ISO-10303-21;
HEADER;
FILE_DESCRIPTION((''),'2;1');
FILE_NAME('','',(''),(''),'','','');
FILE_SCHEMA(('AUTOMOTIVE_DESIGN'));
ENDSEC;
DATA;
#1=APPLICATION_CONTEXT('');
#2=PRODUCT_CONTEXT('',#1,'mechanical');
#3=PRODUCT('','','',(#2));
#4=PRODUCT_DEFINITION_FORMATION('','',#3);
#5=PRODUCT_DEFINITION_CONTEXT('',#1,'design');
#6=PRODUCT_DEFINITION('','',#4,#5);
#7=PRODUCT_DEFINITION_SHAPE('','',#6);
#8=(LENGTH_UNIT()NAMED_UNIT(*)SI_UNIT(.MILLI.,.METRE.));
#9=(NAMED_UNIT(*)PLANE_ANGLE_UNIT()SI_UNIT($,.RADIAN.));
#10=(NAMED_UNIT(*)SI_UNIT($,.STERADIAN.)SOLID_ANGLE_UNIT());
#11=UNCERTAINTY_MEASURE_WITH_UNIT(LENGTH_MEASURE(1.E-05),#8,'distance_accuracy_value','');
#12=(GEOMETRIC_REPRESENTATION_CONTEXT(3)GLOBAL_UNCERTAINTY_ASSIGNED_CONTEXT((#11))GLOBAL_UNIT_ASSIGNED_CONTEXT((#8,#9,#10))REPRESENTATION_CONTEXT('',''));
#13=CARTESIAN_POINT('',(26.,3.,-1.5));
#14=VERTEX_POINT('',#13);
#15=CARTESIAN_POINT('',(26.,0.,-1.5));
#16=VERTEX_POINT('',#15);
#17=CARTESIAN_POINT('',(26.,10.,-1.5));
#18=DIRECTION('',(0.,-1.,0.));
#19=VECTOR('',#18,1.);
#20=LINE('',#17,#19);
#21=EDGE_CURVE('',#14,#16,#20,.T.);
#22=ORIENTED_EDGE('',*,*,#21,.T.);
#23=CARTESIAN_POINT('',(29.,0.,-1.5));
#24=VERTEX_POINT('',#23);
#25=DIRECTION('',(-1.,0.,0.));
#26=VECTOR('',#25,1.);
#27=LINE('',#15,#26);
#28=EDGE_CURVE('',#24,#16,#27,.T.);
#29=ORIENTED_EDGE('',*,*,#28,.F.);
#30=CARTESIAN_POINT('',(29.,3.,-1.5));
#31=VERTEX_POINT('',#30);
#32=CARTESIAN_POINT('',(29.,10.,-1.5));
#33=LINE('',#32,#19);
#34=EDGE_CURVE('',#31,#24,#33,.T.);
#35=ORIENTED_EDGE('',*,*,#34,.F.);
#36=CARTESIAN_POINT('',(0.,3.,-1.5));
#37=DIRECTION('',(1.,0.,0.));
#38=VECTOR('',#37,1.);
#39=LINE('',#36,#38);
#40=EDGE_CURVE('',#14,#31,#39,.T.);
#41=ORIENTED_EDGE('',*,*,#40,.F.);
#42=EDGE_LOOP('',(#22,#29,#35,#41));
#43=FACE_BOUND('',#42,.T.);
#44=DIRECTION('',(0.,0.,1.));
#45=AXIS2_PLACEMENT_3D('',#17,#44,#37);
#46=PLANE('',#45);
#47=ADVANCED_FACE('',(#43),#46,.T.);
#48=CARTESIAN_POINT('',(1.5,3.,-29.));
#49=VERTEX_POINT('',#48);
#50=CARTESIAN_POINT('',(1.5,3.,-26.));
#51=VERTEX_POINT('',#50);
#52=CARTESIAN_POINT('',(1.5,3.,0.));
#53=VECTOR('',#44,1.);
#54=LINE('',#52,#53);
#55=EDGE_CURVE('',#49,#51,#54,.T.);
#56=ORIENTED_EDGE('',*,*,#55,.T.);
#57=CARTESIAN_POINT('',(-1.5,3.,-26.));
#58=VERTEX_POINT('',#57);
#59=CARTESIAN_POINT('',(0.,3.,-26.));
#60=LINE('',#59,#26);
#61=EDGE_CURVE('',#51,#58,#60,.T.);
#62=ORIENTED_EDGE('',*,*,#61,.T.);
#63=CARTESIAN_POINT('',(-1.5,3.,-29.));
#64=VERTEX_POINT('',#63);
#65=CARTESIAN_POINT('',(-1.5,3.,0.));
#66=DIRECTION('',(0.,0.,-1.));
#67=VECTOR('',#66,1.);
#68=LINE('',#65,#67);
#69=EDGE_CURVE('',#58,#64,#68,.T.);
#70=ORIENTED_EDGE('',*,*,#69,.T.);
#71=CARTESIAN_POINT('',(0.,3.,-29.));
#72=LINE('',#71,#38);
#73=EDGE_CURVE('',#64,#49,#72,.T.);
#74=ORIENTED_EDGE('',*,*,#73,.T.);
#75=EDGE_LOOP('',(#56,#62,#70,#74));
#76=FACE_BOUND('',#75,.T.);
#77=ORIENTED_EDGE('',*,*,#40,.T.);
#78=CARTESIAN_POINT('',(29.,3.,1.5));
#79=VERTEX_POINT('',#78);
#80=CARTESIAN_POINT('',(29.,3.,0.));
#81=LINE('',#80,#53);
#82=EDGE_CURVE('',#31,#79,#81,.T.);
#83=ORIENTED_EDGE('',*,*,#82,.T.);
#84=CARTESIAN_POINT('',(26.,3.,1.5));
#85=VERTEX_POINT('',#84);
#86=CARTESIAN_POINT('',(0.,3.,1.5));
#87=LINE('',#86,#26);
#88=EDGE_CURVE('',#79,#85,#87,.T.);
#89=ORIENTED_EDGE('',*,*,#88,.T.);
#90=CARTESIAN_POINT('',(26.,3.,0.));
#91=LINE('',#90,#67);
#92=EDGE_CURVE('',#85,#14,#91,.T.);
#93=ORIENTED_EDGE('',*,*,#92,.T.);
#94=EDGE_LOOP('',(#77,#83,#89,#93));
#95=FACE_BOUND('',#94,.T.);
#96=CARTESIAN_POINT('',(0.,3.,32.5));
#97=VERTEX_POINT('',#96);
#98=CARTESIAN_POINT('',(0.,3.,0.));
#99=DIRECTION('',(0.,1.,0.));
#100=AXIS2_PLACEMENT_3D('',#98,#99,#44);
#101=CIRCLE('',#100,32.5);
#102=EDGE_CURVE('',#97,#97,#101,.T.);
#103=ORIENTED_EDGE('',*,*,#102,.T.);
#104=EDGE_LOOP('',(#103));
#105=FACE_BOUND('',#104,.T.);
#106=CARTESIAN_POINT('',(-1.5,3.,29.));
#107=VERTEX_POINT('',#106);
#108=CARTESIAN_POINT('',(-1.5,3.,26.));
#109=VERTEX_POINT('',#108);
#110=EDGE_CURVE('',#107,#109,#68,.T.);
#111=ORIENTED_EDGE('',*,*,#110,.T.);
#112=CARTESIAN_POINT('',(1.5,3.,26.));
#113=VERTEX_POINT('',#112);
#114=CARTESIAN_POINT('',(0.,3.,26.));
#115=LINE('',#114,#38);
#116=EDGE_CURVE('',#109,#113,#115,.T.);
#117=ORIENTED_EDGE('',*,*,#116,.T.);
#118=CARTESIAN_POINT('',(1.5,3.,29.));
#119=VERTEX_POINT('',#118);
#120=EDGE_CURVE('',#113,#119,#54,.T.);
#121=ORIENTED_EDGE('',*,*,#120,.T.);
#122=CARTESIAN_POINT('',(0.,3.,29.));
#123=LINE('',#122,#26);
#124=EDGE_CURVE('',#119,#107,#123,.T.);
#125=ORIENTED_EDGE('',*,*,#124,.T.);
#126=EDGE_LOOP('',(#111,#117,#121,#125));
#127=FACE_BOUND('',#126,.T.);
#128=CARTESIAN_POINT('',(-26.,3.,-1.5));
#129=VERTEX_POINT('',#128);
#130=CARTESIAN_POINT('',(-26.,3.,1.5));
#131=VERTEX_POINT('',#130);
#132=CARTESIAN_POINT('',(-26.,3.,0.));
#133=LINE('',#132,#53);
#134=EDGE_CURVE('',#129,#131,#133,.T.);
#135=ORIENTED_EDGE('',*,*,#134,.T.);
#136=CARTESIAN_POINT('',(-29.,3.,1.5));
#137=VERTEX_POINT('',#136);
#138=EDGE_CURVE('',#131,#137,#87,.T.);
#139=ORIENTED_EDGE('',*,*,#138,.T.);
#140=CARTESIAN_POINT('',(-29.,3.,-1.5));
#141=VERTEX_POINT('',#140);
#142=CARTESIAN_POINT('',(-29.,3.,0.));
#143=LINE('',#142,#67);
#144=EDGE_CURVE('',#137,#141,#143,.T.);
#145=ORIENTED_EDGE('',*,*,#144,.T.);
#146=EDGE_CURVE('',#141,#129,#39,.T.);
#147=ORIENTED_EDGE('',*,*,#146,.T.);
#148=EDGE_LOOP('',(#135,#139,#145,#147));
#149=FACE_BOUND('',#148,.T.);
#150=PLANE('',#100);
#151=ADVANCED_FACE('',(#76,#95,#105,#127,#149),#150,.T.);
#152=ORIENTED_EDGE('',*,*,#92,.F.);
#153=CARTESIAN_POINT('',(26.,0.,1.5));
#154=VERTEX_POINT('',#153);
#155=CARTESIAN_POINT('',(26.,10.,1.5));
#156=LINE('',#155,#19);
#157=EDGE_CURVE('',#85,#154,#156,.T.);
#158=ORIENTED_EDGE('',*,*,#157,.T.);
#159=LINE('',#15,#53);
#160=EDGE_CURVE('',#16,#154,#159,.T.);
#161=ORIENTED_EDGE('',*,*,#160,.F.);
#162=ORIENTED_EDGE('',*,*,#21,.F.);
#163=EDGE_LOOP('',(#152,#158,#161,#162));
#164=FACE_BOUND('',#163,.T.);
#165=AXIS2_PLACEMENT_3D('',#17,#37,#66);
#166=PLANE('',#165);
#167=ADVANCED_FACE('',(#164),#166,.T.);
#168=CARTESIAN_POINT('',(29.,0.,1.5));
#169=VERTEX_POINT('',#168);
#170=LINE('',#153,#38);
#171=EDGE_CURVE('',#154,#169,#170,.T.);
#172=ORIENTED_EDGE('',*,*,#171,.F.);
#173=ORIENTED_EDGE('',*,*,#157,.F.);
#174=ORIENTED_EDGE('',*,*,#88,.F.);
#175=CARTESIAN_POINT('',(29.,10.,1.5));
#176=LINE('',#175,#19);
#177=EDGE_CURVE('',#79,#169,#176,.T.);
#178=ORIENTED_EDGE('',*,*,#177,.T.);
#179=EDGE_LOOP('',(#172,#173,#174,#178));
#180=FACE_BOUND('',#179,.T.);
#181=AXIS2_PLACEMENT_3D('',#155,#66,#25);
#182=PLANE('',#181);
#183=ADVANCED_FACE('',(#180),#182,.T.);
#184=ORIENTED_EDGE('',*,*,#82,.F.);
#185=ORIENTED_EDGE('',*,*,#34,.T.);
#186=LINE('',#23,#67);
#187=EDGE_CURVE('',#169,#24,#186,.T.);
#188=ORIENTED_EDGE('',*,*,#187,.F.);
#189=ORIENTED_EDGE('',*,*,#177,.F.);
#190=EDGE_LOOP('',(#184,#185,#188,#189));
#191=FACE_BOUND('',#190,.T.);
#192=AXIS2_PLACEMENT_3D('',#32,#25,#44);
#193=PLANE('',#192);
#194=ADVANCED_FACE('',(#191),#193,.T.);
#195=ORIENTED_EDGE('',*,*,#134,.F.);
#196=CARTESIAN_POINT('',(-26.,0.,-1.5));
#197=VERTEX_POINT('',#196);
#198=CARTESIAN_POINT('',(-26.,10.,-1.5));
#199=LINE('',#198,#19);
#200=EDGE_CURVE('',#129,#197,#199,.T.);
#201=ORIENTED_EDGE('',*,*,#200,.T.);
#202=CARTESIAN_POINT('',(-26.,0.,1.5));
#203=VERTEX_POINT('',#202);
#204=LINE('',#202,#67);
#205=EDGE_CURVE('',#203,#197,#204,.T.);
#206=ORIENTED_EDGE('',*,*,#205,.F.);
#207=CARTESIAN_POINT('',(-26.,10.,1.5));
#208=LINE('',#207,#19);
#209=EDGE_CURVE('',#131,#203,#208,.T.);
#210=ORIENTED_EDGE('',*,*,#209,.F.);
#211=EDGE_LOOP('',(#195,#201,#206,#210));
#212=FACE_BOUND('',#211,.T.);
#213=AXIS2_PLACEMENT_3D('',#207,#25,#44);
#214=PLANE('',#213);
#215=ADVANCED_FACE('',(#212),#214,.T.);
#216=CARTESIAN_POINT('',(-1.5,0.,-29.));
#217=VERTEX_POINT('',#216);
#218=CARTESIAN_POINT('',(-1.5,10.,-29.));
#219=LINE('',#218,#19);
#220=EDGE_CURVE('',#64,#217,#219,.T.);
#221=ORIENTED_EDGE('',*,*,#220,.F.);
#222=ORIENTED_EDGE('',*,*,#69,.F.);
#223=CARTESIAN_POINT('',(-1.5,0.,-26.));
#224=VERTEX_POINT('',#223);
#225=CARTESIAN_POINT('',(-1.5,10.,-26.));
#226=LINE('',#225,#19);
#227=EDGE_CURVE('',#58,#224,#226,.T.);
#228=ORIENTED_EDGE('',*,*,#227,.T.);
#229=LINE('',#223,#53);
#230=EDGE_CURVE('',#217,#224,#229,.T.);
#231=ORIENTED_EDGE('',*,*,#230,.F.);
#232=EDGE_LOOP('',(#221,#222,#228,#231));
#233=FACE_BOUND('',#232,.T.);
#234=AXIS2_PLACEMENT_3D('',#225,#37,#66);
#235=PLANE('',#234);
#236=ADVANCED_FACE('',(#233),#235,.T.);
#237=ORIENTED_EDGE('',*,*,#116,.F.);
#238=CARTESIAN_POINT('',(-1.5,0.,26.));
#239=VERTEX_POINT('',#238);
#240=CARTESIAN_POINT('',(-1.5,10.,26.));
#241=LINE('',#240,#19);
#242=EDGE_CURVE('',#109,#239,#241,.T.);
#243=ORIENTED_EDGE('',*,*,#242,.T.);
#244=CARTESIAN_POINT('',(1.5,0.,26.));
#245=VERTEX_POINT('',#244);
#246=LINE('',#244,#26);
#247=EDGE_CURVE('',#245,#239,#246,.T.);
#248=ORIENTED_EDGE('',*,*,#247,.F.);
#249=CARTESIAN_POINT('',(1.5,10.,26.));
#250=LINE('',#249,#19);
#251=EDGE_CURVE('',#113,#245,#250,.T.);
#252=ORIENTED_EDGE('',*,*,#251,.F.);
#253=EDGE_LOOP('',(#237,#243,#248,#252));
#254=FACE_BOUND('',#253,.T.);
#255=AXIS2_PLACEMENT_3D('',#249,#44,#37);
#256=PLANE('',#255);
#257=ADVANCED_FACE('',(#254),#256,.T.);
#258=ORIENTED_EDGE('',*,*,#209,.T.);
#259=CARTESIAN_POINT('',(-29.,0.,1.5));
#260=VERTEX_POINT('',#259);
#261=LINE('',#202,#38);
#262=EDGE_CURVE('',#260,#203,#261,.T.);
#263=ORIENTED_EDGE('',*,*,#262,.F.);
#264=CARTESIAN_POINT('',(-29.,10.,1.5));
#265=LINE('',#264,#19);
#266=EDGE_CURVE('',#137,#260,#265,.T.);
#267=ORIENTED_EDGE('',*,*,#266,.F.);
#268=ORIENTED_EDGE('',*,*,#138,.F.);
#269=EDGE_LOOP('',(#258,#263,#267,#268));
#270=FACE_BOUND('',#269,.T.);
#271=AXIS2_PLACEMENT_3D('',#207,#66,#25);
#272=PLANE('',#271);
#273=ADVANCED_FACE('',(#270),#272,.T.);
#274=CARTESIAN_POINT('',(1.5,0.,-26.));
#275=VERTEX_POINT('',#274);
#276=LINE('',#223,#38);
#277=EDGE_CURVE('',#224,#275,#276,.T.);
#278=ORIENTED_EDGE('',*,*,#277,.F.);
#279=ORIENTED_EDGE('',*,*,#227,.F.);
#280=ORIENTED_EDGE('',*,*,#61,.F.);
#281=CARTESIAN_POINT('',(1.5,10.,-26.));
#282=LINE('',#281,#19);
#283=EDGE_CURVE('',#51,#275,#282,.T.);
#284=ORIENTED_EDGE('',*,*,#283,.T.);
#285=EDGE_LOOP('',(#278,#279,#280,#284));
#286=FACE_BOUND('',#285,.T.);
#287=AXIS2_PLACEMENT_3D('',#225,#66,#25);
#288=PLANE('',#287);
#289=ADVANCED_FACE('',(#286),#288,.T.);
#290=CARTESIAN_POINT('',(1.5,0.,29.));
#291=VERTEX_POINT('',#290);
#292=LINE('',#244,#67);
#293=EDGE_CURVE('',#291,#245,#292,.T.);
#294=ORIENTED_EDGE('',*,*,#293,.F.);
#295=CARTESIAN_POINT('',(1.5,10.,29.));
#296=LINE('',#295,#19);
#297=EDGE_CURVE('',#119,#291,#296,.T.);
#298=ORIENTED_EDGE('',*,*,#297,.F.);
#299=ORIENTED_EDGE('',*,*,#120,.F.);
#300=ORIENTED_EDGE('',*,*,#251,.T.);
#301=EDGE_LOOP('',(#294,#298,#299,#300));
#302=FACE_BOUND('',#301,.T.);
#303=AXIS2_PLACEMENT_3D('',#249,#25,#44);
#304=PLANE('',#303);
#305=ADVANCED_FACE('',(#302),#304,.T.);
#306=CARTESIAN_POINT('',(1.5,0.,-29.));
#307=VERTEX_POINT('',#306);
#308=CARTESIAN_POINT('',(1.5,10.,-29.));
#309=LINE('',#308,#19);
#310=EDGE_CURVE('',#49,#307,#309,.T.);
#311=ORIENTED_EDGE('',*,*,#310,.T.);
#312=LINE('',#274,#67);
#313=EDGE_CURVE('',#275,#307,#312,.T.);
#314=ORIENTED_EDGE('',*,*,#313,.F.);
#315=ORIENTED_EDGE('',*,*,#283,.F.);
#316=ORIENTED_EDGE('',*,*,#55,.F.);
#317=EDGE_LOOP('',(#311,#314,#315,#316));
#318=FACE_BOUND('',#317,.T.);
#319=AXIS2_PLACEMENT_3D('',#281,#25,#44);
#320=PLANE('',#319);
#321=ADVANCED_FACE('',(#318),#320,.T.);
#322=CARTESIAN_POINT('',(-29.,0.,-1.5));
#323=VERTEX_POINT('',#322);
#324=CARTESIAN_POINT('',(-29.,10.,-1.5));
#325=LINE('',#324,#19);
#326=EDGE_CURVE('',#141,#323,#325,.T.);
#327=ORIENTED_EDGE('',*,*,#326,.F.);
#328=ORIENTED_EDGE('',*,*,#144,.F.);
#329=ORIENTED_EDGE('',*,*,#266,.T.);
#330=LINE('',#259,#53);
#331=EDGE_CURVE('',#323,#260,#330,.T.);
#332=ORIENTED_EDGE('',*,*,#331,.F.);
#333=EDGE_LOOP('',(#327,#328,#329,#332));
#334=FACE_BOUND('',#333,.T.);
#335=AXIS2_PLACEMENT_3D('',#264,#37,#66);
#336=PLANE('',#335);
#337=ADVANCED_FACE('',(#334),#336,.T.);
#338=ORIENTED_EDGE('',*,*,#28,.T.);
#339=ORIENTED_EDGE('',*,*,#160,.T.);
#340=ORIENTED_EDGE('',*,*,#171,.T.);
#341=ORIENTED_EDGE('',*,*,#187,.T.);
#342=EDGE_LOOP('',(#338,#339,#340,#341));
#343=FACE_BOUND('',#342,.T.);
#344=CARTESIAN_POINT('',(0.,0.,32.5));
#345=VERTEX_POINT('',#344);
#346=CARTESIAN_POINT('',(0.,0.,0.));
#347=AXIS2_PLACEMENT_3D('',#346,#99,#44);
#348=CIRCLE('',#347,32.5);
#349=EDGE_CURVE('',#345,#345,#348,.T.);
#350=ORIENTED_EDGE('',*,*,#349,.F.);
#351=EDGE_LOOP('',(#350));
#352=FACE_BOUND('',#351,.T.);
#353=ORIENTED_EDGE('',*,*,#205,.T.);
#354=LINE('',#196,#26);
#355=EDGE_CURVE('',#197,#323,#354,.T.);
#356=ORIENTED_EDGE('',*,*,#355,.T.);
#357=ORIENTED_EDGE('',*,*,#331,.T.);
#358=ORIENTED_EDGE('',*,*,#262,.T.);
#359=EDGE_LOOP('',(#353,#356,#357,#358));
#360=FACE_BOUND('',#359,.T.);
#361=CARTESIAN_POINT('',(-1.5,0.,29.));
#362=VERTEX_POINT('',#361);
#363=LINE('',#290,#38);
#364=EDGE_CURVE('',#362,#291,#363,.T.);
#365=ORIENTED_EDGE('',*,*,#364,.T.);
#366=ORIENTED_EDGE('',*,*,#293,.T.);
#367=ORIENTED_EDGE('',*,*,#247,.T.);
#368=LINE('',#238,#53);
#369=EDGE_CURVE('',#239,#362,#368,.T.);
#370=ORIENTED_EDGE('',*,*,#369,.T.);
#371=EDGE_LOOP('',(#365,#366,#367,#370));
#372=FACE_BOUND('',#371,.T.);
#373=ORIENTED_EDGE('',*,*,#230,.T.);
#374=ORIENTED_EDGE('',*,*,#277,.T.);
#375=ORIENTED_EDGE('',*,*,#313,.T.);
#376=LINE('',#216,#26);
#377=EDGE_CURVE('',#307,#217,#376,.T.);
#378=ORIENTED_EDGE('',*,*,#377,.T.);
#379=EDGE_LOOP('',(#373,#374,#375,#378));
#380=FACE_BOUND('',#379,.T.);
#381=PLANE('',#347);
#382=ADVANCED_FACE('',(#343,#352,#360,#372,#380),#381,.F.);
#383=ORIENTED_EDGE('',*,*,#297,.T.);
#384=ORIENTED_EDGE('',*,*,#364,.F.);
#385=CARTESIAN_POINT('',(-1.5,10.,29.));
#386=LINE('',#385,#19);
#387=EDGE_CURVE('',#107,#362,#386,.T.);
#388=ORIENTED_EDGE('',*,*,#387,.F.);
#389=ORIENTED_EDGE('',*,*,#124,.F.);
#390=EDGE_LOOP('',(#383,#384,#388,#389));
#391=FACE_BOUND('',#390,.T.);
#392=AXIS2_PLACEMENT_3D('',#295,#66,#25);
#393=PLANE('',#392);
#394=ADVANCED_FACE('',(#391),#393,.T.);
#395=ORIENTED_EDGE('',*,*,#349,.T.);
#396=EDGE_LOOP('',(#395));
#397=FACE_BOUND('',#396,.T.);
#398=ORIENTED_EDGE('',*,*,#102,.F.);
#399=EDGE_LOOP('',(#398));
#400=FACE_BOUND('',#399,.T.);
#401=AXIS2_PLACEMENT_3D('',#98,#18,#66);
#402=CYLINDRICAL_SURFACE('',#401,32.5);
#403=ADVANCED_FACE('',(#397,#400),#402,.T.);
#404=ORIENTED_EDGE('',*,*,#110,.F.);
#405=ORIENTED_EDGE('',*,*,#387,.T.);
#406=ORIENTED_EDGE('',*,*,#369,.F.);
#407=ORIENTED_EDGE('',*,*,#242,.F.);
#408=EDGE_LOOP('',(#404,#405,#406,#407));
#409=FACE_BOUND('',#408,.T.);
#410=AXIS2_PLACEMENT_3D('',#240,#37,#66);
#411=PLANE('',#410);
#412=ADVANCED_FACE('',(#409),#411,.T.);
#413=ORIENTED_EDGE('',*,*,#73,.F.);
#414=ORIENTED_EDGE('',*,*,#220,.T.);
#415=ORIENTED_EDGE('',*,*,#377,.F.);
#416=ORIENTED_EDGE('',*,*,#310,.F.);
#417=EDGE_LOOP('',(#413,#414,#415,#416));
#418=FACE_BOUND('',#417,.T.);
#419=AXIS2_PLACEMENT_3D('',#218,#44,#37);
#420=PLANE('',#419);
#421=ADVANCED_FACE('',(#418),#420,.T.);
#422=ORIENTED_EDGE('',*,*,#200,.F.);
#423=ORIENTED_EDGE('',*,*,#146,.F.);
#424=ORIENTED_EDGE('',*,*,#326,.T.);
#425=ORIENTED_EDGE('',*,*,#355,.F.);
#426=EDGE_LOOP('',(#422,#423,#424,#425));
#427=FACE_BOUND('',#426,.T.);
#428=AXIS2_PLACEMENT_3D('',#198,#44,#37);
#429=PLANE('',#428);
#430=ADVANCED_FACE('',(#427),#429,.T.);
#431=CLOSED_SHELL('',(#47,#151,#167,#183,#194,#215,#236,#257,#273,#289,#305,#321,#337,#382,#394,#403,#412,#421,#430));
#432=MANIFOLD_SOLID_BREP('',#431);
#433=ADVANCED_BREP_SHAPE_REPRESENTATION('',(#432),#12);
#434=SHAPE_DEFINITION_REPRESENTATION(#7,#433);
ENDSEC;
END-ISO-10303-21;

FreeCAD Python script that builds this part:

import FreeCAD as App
import Part
import Sketcher
from FreeCAD import Vector
Q = App.Units.Quantity


def add_polygon(sketch, points):
    """Adds a closed chain of lines whose ends are joined by coincident constraints."""
    first, n = sketch.GeometryCount, len(points)
    for a, b in zip(points, points[1:] + points[:1]):
        sketch.addGeometry(Part.LineSegment(App.Vector(*a, 0), App.Vector(*b, 0)), False)
    for i in range(n):
        sketch.addConstraint(Sketcher.Constraint("Coincident", first + i, 2, first + (i + 1) % n, 1))

doc = App.newDocument("Part")
body = doc.addObject("PartDesign::Body", "Body")

# Sketch on XZ plane
sketch1 = doc.addObject("Sketcher::SketchObject", "Sketch")
body.addObject(sketch1)
sketch1.AttachmentSupport = (doc.XZ_Plane, [""])
sketch1.MapMode = "FlatFace"
sketch1.addGeometry(Part.Circle(Vector(0, 0, 0), Vector(0, 0, 1), 32.5), False)
sketch1.addConstraint([
    Sketcher.Constraint("Coincident", 0, 3, -1, 1),
    Sketcher.Constraint("Diameter", 0, Q("65 mm")),
])
pad1 = doc.addObject("PartDesign::Pad", "Pad")
body.addObject(pad1)
pad1.Profile = sketch1
pad1.Length = 3
pad1.Reversed = True

# Sketch on XZ plane
sketch2 = doc.addObject("Sketcher::SketchObject", "Sketch001")
body.addObject(sketch2)
sketch2.AttachmentSupport = (doc.XZ_Plane, [""])
sketch2.MapMode = "FlatFace"
add_polygon(sketch2, [(26, -1.5), (26, 1.5), (29, 1.5), (29, -1.5)])  # lines 0-3
add_polygon(sketch2, [(-1.5, -29), (-1.5, -26), (1.5, -26), (1.5, -29)])  # lines 4-7
add_polygon(sketch2, [(-1.5, 26), (-1.5, 29), (1.5, 29), (1.5, 26)])  # lines 8-11
add_polygon(sketch2, [(-29, -1.5), (-29, 1.5), (-26, 1.5), (-26, -1.5)])  # lines 12-15
sketch2.addConstraint([
    Sketcher.Constraint("Vertical", 0),
    Sketcher.Constraint("Horizontal", 1),
    Sketcher.Constraint("Vertical", 2),
    Sketcher.Constraint("Horizontal", 3),
    Sketcher.Constraint("Vertical", 4),
    Sketcher.Constraint("Horizontal", 5),
    Sketcher.Constraint("Vertical", 6),
    Sketcher.Constraint("Horizontal", 7),
    Sketcher.Constraint("Vertical", 8),
    Sketcher.Constraint("Horizontal", 9),
    Sketcher.Constraint("Vertical", 10),
    Sketcher.Constraint("Horizontal", 11),
    Sketcher.Constraint("Vertical", 12),
    Sketcher.Constraint("Horizontal", 13),
    Sketcher.Constraint("Vertical", 14),
    Sketcher.Constraint("Horizontal", 15),
    Sketcher.Constraint("Symmetric", 6, 2, 8, 2, -1, 1),
    Sketcher.Constraint("Symmetric", 4, 2, 10, 2, -1, 1),
    Sketcher.Constraint("Symmetric", 2, 2, 12, 2, -1, 1),
    Sketcher.Constraint("Symmetric", 0, 2, 14, 2, -1, 1),
    Sketcher.Constraint("Horizontal", 1, 2, 12, 2),
    Sketcher.Constraint("Vertical", 7, 2, 8, 2),
    Sketcher.Constraint("Equal", 3, 5),
    Sketcher.Constraint("Equal", 15, 0),
    Sketcher.Constraint("Equal", 2, 4),
    Sketcher.Constraint("DistanceX", 1, 1, 1, 2, Q("3 mm")),
    Sketcher.Constraint("DistanceX", -1, 1, 0, 2, Q("26 mm")),
    Sketcher.Constraint("DistanceY", 4, 2, -1, 1, Q("26 mm")),
])
pocket1 = doc.addObject("PartDesign::Pocket", "Pocket")
body.addObject(pocket1)
pocket1.Profile = sketch2
pocket1.Length = 10

doc.recompute()
